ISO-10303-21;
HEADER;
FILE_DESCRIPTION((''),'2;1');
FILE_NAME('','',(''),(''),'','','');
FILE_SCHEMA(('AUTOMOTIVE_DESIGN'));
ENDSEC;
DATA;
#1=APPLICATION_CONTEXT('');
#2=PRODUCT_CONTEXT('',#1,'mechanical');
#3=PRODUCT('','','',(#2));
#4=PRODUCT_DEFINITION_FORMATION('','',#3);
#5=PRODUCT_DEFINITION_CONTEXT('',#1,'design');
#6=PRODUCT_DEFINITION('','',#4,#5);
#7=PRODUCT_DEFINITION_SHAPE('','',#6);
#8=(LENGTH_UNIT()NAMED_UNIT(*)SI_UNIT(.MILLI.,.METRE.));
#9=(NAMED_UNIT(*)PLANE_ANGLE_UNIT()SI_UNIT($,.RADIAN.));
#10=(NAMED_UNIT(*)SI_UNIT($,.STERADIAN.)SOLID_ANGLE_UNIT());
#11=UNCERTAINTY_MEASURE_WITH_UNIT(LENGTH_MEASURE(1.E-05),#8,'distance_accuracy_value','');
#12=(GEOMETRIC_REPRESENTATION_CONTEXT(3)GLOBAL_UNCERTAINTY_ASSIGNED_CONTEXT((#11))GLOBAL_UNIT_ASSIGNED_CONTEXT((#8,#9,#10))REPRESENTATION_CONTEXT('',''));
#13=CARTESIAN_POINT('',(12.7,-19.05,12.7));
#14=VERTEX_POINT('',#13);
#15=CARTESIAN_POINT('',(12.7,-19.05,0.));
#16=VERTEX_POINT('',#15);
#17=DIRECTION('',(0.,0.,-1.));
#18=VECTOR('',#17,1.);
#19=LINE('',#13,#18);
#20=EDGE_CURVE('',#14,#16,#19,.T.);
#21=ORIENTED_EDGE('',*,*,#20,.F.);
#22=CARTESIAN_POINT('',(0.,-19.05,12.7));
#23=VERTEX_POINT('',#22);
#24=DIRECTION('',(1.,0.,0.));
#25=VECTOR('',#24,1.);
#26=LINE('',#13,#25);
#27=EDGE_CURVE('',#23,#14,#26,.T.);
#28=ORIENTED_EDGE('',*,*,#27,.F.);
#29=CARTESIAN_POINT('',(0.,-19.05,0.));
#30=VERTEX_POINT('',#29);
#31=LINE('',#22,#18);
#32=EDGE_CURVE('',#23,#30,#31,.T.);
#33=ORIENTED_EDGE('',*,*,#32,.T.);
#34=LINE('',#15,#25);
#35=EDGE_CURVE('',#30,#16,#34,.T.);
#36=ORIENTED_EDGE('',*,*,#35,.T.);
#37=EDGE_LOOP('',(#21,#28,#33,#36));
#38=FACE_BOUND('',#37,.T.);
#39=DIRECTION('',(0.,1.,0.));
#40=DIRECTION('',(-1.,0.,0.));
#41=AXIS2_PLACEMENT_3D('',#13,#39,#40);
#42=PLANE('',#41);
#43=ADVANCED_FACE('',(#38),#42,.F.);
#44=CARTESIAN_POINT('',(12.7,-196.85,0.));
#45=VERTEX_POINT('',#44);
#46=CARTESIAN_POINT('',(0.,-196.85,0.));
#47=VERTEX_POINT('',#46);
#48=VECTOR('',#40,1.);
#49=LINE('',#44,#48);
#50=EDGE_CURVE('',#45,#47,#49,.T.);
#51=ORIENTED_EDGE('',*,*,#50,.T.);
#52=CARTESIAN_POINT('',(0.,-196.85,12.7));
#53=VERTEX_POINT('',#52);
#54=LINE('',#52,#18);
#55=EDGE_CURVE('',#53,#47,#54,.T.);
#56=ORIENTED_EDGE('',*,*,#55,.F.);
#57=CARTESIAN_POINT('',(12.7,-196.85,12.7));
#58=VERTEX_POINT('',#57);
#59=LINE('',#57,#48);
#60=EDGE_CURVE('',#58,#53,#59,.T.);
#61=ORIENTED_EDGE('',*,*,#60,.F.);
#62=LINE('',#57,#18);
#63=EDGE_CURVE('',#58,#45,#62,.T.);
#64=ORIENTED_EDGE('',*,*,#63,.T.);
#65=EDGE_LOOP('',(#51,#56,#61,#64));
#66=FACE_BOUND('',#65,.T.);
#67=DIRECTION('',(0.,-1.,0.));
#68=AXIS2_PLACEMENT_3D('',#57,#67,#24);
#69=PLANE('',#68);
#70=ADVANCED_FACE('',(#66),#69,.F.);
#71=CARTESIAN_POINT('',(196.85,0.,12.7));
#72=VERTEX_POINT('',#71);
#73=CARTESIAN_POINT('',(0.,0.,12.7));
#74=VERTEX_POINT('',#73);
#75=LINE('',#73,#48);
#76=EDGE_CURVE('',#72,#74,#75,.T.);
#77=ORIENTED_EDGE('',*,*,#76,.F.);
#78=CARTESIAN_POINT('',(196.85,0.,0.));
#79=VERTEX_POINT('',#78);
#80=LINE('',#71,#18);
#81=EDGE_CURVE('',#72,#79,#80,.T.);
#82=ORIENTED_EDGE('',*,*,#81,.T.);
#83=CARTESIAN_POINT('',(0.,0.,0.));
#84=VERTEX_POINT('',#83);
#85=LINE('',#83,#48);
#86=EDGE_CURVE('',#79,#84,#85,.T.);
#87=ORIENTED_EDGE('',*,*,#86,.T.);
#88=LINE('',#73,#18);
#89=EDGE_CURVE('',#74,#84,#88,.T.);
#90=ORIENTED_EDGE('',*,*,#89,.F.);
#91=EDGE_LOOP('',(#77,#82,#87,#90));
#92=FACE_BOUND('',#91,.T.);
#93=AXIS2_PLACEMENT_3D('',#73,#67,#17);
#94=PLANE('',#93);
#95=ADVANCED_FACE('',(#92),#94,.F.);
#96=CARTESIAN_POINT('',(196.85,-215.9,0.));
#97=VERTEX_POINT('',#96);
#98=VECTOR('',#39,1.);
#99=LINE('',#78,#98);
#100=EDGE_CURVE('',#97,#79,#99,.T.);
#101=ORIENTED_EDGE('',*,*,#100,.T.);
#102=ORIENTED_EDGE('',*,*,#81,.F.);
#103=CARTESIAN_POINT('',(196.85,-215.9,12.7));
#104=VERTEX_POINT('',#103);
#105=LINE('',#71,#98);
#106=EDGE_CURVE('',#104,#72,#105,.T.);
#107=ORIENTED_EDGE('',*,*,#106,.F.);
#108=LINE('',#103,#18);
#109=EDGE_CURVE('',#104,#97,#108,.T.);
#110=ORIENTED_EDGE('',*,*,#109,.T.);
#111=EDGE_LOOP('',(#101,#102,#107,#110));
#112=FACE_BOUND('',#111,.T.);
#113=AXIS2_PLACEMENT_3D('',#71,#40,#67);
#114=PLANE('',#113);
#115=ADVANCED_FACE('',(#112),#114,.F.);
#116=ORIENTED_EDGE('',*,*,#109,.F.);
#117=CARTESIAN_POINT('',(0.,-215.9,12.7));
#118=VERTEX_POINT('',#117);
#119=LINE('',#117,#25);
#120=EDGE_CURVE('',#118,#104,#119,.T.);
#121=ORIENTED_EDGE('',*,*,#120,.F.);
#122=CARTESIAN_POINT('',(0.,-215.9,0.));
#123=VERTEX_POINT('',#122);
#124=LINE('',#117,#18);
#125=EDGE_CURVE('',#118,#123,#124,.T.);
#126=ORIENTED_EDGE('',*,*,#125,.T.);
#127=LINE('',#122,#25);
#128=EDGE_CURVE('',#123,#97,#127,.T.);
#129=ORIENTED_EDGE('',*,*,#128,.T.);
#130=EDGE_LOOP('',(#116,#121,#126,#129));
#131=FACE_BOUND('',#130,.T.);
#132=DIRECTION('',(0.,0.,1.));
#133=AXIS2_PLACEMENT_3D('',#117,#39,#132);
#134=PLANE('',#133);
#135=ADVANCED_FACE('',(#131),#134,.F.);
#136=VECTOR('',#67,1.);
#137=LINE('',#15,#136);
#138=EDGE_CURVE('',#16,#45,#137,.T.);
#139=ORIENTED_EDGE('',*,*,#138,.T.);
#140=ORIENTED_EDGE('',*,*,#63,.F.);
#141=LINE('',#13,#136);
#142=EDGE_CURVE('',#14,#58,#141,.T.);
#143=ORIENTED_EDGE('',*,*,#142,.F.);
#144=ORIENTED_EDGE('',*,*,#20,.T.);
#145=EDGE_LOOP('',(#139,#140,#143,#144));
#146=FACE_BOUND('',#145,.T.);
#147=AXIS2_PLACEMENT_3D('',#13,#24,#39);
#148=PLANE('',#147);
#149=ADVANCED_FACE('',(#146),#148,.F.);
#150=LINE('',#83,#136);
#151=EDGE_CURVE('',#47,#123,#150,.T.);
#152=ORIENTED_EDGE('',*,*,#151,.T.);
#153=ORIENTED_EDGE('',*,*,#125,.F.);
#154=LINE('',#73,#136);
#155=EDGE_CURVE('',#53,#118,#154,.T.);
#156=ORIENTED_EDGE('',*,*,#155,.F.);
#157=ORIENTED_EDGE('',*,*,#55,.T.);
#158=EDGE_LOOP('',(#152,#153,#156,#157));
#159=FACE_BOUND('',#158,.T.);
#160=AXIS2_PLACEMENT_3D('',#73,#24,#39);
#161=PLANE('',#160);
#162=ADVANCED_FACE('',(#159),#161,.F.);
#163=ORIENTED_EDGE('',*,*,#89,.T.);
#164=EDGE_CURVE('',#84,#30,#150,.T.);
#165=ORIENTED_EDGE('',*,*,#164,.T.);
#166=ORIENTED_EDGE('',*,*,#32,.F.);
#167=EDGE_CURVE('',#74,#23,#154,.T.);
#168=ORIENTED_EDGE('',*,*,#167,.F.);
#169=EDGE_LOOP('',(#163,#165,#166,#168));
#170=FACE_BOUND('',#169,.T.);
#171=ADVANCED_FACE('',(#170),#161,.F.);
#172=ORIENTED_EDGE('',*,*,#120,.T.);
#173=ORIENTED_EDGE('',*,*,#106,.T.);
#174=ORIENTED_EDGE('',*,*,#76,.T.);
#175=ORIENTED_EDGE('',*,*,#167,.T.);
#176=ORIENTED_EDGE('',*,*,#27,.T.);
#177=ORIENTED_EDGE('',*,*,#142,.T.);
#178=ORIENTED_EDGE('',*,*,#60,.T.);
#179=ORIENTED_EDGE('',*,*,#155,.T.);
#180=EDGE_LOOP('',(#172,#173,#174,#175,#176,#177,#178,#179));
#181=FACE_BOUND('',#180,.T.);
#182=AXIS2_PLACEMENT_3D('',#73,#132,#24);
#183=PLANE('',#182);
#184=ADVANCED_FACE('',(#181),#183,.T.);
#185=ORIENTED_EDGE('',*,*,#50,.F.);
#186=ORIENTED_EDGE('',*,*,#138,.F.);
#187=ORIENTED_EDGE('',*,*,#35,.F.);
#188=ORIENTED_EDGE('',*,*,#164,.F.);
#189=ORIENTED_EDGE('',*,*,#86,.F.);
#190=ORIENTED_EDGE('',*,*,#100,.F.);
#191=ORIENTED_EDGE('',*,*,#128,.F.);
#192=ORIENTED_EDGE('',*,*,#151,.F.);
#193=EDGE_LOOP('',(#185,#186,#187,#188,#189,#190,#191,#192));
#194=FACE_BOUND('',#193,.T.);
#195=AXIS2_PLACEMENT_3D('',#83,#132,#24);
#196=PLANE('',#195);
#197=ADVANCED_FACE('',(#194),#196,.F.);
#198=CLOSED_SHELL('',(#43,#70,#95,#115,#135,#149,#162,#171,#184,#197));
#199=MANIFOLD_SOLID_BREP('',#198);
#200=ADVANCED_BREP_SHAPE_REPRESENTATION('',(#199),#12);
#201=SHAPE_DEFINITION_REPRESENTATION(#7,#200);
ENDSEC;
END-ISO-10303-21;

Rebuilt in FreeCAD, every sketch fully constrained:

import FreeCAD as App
import Part
import Sketcher
from FreeCAD import Vector
Q = App.Units.Quantity


def add_polygon(sketch, points):
    """Adds a closed chain of lines whose ends are joined by coincident constraints."""
    first, n = sketch.GeometryCount, len(points)
    for a, b in zip(points, points[1:] + points[:1]):
        sketch.addGeometry(Part.LineSegment(App.Vector(*a, 0), App.Vector(*b, 0)), False)
    for i in range(n):
        sketch.addConstraint(Sketcher.Constraint("Coincident", first + i, 2, first + (i + 1) % n, 1))

doc = App.newDocument("Part")
body = doc.addObject("PartDesign::Body", "Body")

sketch1 = doc.addObject("Sketcher::SketchObject", "Sketch")
body.addObject(sketch1)
sketch1.AttachmentSupport = (doc.XY_Plane, [""])
sketch1.MapMode = "FlatFace"
add_polygon(sketch1, [(0, 0), (0, -215.9), (196.85, -215.9), (196.85, 0)])
sketch1.addConstraint([
    Sketcher.Constraint("Vertical", 0),
    Sketcher.Constraint("Horizontal", 1),
    Sketcher.Constraint("Vertical", 2),
    Sketcher.Constraint("Horizontal", 3),
    Sketcher.Constraint("Coincident", 3, 2, -1, 1),
    Sketcher.Constraint("DistanceY", 0, 2, 0, 1, Q("8.5 in")),
    Sketcher.Constraint("DistanceX", 1, 1, 1, 2, Q("7.75 in")),
])
pad1 = doc.addObject("PartDesign::Pad", "Pad")
body.addObject(pad1)
pad1.Profile = sketch1
pad1.Length = Q("0.5 in")

sketch2 = doc.addObject("Sketcher::SketchObject", "Sketch001")
body.addObject(sketch2)
sketch2.AttachmentSupport = (doc.XY_Plane, [""])
sketch2.MapMode = "FlatFace"
add_polygon(sketch2, [(12.7, -19.05), (12.7, -196.85), (0, -196.85), (0, -19.05)])
sketch2.addConstraint([
    Sketcher.Constraint("Vertical", 0),
    Sketcher.Constraint("Horizontal", 1),
    Sketcher.Constraint("Vertical", 2),
    Sketcher.Constraint("Horizontal", 3),
    Sketcher.Constraint("PointOnObject", 1, 2, -2),
    Sketcher.Constraint("DistanceY", 0, 2, 0, 1, Q("7 in")),
    Sketcher.Constraint("DistanceX", 1, 2, 1, 1, Q("0.5 in")),
    Sketcher.Constraint("DistanceY", 0, 2, -1, 1, Q("7.75 in")),
])
pocket1 = doc.addObject("PartDesign::Pocket", "Pocket")
body.addObject(pocket1)
pocket1.Profile = sketch2
pocket1.Type = "ThroughAll"
pocket1.Reversed = True

doc.recompute()
